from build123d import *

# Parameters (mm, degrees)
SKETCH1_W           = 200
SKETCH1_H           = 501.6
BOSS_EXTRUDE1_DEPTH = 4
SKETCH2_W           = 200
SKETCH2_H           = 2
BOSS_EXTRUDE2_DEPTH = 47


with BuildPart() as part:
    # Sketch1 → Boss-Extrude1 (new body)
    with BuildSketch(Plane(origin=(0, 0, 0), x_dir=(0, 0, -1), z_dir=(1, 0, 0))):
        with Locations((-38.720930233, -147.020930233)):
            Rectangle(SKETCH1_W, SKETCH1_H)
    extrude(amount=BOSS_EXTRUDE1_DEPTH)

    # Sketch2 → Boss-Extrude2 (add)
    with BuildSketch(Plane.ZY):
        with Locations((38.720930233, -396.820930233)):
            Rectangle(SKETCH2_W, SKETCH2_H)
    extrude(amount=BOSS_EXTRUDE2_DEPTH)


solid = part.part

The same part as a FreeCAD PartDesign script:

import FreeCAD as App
import Part
import Sketcher
Q = App.Units.Quantity

doc = App.newDocument("Part")
params = doc.addObject("Spreadsheet::Sheet", "Params")
for row, (alias, value) in enumerate([
    ("sketch1_height", "200 mm"),
    ("sketch1_width", "501.6 mm"),
    ("pad1_length", "4 mm"),
    ("sketch2_width", "2 mm"),
    ("sketch2_height", "200 mm"),
    ("pad2_length", "47 mm"),
], start=1):
    params.set(f"A{row}", alias)
    params.set(f"B{row}", "=" + value)
    params.setAlias(f"B{row}", alias)

body = doc.addObject("PartDesign::Body", "Body")

sketch1 = body.newObject("Sketcher::SketchObject", "Sketch")
sketch1.AttachmentSupport = (doc.getObject("YZ_Plane"), [""])
sketch1.MapMode = "FlatFace"
sketch1.addGeometry([
    Part.LineSegment(App.Vector(103.77907, 138.72093, 0), App.Vector(-397.82093, 138.72093, 0)),
    Part.LineSegment(App.Vector(-397.82093, 138.72093, 0), App.Vector(-397.82093, -61.27907, 0)),
    Part.LineSegment(App.Vector(-397.82093, -61.27907, 0), App.Vector(103.77907, -61.27907, 0)),
    Part.LineSegment(App.Vector(103.77907, -61.27907, 0), App.Vector(103.77907, 138.72093, 0)),
], False)
sketch1.addConstraint([
    Sketcher.Constraint("Coincident", 0, 2, 1, 1),
    Sketcher.Constraint("Coincident", 1, 2, 2, 1),
    Sketcher.Constraint("Coincident", 2, 2, 3, 1),
    Sketcher.Constraint("Coincident", 3, 2, 0, 1),
    Sketcher.Constraint("Horizontal", 0),
    Sketcher.Constraint("Vertical", 1),
    Sketcher.Constraint("Horizontal", 2),
    Sketcher.Constraint("Vertical", 3),
    Sketcher.Constraint("DistanceY", 1, 2, 1, 1, Q("200 mm")),
    Sketcher.Constraint("DistanceX", 0, 2, 0, 1, Q("501.6 mm")),
    Sketcher.Constraint("DistanceX", 0, 2, -1, 1, Q("397.82093 mm")),
    Sketcher.Constraint("DistanceY", -1, 1, 0, 2, Q("138.72093 mm")),
])
sketch1.setExpression("Constraints[8]", "Params.sketch1_height")
sketch1.setExpression("Constraints[9]", "Params.sketch1_width")
pad1 = body.newObject("PartDesign::Pad", "Pad")
pad1.Profile = sketch1
pad1.setExpression("Length", "Params.pad1_length")

sketch2 = body.newObject("Sketcher::SketchObject", "Sketch001")
sketch2.AttachmentSupport = (doc.getObject("YZ_Plane"), [""])
sketch2.MapMode = "FlatFace"
sketch2.addGeometry([
    Part.LineSegment(App.Vector(-395.82093, -61.27907, 0), App.Vector(-397.82093, -61.27907, 0)),
    Part.LineSegment(App.Vector(-397.82093, -61.27907, 0), App.Vector(-397.82093, 138.72093, 0)),
    Part.LineSegment(App.Vector(-397.82093, 138.72093, 0), App.Vector(-395.82093, 138.72093, 0)),
    Part.LineSegment(App.Vector(-395.82093, 138.72093, 0), App.Vector(-395.82093, -61.27907, 0)),
], False)
sketch2.addConstraint([
    Sketcher.Constraint("Coincident", 0, 2, 1, 1),
    Sketcher.Constraint("Coincident", 1, 2, 2, 1),
    Sketcher.Constraint("Coincident", 2, 2, 3, 1),
    Sketcher.Constraint("Coincident", 3, 2, 0, 1),
    Sketcher.Constraint("Horizontal", 0),
    Sketcher.Constraint("Vertical", 1),
    Sketcher.Constraint("Horizontal", 2),
    Sketcher.Constraint("Vertical", 3),
    Sketcher.Constraint("DistanceX", 0, 2, 0, 1, Q("2 mm")),
    Sketcher.Constraint("DistanceY", 1, 1, 1, 2, Q("200 mm")),
    Sketcher.Constraint("DistanceX", 0, 2, -1, 1, Q("397.82093 mm")),
    Sketcher.Constraint("DistanceY", 0, 2, -1, 1, Q("61.27907 mm")),
])
sketch2.setExpression("Constraints[8]", "Params.sketch2_width")
sketch2.setExpression("Constraints[9]", "Params.sketch2_height")
pad2 = body.newObject("PartDesign::Pad", "Pad001")
pad2.Profile = sketch2
pad2.setExpression("Length", "Params.pad2_length")
pad2.Reversed = True

doc.recompute()
